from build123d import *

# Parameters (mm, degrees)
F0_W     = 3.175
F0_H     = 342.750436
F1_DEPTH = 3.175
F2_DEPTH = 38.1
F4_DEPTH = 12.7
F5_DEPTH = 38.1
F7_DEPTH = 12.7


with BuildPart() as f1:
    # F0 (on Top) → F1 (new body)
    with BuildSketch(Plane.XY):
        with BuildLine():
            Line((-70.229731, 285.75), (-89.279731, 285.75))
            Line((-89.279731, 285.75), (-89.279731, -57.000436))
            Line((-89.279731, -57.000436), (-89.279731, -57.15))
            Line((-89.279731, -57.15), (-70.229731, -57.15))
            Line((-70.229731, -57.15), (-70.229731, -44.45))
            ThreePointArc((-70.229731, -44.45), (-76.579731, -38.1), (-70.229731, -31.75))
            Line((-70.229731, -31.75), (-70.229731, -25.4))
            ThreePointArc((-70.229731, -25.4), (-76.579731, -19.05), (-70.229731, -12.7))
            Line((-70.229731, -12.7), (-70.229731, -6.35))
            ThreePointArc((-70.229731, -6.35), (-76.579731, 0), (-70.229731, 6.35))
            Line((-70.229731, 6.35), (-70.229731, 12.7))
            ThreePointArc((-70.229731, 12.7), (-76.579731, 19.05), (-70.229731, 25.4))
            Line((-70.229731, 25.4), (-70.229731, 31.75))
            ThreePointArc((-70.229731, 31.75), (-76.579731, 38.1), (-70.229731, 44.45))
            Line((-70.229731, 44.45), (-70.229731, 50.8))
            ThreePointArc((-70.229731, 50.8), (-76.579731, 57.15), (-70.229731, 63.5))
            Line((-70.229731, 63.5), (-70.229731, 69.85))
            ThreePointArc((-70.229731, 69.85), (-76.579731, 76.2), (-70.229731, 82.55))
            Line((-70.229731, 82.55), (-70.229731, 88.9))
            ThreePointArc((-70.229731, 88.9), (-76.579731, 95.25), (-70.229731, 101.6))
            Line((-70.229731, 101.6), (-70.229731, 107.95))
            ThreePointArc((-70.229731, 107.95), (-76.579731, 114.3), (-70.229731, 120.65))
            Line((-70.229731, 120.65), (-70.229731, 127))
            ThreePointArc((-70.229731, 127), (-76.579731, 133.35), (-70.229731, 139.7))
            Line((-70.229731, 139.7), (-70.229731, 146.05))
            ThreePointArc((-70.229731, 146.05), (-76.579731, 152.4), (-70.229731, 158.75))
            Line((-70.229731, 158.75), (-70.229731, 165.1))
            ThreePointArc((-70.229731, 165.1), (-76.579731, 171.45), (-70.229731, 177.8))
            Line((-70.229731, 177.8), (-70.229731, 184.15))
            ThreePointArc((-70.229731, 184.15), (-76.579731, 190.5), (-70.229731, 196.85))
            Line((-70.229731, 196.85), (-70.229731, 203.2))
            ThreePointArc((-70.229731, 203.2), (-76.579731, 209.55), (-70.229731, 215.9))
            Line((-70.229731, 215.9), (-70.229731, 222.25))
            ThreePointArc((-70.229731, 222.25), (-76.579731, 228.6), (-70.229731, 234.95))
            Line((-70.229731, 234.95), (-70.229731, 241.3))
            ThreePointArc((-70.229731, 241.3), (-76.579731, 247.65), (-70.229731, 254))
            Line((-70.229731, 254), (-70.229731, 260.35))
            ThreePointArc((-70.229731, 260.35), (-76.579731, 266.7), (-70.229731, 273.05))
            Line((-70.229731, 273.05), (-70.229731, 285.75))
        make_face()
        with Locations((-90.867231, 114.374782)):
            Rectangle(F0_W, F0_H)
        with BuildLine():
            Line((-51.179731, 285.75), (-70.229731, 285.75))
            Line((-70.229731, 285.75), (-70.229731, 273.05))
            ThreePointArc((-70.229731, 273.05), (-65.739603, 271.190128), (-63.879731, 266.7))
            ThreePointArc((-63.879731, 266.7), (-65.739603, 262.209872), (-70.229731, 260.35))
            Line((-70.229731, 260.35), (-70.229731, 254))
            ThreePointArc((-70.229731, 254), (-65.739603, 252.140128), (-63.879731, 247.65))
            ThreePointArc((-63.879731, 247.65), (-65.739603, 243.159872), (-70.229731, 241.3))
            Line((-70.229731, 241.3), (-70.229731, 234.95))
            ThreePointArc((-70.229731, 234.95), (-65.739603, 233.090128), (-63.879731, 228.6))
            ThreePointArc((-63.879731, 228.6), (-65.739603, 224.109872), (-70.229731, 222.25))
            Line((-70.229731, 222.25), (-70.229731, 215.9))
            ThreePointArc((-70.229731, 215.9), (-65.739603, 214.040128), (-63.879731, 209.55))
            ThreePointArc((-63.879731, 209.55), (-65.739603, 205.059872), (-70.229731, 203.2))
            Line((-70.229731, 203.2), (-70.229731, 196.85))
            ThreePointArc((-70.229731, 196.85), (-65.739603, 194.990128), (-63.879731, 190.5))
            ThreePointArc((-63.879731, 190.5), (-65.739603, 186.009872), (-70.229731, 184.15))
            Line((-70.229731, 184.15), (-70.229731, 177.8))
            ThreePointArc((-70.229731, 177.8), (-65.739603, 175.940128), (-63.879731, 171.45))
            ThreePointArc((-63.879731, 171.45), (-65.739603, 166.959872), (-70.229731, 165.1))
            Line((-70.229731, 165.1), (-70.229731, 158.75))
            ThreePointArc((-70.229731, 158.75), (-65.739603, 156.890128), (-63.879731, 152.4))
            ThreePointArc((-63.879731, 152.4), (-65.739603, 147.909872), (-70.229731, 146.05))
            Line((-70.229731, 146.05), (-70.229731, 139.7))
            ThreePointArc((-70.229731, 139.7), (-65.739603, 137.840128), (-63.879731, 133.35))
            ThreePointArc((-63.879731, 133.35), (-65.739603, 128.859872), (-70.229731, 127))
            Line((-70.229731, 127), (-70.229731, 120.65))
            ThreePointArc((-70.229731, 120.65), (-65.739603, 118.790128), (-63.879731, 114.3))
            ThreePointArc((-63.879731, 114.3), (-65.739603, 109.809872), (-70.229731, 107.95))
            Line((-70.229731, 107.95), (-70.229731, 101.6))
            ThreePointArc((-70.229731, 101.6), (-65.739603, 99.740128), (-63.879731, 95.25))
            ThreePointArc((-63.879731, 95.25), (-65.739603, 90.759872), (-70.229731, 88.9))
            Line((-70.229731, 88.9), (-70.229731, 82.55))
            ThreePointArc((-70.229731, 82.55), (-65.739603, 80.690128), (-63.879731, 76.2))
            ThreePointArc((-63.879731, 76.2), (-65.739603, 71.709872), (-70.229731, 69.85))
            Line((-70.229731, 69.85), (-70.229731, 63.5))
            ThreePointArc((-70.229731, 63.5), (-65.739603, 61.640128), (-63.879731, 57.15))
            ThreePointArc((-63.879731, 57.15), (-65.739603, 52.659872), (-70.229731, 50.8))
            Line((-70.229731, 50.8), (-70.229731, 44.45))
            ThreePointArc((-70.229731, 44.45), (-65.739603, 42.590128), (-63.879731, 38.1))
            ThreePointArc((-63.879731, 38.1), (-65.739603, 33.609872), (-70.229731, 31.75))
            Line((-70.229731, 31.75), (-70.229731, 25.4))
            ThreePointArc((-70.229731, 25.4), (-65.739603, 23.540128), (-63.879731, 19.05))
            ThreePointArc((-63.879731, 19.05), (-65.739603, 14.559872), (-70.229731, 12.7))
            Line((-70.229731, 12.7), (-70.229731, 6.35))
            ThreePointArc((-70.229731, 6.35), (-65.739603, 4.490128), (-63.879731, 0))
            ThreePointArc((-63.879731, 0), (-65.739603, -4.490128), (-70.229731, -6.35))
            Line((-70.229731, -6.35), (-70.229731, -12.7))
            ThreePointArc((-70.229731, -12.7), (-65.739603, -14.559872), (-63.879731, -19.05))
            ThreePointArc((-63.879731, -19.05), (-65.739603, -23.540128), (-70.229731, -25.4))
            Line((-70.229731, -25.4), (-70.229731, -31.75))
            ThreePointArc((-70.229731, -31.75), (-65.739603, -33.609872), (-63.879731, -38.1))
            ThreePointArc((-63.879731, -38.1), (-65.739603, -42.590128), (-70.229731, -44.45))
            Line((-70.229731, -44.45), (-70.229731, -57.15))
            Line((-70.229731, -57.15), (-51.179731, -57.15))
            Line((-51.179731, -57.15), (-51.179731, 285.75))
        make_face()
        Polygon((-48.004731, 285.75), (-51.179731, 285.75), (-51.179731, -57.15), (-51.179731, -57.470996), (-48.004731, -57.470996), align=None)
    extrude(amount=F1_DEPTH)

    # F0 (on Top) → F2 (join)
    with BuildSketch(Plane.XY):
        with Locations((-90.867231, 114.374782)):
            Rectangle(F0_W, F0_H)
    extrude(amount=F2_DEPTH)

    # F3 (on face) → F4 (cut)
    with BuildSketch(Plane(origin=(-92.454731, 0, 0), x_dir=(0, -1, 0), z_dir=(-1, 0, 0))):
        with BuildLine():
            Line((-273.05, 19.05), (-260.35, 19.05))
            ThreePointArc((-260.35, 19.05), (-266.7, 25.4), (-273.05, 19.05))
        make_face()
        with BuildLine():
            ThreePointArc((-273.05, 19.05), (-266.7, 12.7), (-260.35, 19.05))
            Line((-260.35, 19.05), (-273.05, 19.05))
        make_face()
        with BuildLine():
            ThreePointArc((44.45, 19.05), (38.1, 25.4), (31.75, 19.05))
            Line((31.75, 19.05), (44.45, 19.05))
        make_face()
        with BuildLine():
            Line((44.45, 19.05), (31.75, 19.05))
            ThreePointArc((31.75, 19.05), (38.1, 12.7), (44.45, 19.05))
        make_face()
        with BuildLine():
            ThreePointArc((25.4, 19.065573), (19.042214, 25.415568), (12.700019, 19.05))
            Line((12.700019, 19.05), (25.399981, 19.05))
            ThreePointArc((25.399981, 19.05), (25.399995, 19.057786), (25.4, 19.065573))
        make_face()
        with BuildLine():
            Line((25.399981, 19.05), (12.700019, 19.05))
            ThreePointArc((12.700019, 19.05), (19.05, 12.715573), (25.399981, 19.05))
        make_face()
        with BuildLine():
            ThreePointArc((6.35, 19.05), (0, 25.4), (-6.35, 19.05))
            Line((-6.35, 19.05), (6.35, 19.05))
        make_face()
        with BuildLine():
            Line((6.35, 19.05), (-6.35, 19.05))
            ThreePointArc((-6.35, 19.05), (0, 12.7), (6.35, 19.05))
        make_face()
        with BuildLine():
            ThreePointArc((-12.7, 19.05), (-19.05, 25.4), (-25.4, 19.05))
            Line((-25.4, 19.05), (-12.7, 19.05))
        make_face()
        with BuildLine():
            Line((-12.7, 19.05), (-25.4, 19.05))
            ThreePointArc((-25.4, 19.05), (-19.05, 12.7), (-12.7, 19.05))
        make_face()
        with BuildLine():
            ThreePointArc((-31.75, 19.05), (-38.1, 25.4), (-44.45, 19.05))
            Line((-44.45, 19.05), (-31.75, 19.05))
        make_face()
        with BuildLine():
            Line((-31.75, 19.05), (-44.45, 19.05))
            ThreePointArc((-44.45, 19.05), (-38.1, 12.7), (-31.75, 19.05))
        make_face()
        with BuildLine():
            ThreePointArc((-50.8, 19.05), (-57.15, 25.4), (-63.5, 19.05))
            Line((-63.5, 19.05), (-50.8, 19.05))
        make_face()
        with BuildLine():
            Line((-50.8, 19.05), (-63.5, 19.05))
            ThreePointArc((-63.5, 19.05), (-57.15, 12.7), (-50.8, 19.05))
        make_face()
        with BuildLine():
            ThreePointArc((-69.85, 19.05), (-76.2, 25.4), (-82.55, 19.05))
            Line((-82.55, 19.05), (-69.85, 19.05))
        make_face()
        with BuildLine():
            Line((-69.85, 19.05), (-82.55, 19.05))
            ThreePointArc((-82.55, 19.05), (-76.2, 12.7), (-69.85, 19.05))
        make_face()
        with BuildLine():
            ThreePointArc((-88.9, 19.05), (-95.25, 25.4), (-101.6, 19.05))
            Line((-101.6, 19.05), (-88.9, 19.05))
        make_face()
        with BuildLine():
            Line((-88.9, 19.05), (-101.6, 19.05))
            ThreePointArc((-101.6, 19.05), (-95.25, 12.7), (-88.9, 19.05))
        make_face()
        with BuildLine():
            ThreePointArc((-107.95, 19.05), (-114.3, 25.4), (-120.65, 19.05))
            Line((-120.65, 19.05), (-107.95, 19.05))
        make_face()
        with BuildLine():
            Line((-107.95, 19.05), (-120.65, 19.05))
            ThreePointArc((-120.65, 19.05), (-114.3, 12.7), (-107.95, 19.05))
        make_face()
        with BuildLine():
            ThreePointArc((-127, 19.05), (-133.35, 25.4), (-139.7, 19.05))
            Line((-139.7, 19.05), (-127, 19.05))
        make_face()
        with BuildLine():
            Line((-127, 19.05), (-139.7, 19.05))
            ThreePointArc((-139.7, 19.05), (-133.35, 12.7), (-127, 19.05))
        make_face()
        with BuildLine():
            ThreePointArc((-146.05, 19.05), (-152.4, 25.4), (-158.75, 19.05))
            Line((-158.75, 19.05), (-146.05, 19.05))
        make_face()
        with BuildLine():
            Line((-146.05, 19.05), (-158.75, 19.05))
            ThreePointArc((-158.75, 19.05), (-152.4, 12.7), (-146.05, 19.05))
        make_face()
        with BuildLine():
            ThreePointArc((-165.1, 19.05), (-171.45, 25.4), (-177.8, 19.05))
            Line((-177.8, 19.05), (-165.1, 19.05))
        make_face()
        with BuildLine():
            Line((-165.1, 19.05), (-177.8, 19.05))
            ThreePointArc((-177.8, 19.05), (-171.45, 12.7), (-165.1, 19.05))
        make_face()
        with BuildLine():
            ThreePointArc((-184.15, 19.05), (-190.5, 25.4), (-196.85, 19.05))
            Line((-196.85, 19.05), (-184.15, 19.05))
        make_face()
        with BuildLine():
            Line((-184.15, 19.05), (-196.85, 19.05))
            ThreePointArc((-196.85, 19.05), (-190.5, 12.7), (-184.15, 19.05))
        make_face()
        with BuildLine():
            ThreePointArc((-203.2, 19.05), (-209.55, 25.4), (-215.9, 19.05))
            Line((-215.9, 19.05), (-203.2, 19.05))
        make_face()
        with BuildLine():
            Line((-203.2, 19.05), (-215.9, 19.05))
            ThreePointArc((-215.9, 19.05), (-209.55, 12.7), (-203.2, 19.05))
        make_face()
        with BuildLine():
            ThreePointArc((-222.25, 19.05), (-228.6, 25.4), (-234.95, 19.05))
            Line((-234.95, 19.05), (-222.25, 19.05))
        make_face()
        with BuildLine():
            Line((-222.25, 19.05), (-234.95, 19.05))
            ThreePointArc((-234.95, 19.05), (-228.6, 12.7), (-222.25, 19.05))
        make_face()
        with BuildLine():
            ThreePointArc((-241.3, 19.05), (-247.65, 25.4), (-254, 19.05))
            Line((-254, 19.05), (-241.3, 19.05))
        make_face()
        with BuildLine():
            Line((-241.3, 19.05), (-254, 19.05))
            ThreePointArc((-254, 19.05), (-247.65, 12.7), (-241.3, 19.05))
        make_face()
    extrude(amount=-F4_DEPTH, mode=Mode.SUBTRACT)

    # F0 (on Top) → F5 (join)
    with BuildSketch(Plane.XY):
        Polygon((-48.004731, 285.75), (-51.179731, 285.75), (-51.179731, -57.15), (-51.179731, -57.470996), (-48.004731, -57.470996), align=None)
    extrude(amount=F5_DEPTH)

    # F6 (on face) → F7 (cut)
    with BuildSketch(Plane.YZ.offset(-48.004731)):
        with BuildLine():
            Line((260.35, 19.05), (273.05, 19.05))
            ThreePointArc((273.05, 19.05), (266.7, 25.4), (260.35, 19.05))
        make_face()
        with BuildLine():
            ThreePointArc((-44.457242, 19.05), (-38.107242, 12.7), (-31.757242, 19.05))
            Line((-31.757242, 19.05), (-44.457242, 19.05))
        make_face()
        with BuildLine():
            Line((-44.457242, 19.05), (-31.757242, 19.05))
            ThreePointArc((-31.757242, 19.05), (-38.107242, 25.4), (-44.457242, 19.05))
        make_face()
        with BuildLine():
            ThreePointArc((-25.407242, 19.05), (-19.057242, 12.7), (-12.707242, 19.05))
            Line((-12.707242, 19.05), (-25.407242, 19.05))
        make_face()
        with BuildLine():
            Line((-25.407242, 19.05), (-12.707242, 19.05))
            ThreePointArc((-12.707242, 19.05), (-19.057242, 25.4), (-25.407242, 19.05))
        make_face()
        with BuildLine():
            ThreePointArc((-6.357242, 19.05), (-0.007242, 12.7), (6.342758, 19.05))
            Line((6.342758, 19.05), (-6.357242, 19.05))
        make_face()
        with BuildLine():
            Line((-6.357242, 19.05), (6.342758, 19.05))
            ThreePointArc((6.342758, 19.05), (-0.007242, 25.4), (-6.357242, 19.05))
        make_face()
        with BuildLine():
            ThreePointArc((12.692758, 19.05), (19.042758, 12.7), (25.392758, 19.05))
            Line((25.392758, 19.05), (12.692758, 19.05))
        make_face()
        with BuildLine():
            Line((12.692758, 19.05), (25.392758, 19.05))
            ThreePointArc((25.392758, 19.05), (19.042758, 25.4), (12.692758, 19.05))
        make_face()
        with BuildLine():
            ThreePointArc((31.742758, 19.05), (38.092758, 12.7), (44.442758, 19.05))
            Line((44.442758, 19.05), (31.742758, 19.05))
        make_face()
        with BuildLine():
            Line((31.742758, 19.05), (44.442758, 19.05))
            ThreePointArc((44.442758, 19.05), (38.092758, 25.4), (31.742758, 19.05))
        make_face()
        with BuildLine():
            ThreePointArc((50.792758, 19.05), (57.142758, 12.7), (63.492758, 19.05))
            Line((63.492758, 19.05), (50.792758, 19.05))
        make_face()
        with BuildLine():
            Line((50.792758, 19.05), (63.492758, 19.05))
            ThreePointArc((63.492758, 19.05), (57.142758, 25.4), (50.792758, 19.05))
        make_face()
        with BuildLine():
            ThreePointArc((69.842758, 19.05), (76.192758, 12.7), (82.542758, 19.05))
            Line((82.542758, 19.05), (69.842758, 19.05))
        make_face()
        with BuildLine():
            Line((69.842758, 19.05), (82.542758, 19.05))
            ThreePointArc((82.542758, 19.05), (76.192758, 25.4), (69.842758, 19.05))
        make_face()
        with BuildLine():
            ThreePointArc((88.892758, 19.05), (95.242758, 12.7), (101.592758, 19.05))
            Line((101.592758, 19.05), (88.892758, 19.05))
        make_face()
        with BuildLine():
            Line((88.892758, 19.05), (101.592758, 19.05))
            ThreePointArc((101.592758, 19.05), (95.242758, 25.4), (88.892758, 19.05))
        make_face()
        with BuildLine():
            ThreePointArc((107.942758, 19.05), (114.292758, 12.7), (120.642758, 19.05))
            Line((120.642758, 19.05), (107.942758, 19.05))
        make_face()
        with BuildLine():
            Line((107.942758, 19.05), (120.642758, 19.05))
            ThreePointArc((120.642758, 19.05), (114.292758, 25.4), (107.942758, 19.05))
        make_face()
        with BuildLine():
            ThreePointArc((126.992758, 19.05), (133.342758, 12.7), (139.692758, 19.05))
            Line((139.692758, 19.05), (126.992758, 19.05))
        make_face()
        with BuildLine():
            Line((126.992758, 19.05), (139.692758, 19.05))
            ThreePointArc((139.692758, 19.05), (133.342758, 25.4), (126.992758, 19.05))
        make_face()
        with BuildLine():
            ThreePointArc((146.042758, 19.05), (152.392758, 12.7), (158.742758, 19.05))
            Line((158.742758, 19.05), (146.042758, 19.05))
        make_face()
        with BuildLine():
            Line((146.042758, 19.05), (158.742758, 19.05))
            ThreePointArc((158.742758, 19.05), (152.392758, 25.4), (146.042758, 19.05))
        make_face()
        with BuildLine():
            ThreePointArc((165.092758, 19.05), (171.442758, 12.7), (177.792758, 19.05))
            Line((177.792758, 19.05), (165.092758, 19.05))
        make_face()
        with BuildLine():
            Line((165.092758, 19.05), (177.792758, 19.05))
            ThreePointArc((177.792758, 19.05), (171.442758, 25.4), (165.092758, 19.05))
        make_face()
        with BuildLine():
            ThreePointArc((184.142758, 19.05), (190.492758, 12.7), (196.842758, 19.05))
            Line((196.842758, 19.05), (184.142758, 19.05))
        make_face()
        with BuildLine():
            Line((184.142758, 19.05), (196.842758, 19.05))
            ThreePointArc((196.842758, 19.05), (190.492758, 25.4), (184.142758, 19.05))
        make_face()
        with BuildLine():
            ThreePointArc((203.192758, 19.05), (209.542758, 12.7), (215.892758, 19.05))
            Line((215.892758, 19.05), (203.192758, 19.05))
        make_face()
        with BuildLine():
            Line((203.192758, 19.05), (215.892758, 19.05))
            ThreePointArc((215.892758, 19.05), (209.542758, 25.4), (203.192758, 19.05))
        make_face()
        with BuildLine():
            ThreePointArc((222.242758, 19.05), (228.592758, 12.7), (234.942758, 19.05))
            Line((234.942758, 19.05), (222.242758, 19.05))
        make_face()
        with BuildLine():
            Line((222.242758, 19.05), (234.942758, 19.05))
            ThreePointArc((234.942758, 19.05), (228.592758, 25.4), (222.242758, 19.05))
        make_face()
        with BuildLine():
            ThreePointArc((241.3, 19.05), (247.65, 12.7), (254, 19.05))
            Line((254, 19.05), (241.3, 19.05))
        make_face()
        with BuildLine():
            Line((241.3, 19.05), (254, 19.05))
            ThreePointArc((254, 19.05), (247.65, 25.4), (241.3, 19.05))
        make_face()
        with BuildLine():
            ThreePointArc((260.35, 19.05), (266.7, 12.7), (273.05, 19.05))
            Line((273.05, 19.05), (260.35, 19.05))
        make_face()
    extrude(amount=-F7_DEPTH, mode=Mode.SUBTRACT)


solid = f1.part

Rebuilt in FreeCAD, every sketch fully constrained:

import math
import FreeCAD as App
import Part
import Sketcher

V = App.Vector
Q = App.Units.Quantity


def add_polygon(sketch, points):
    """Adds a closed chain of lines whose ends are joined by coincident constraints."""
    first, n = sketch.GeometryCount, len(points)
    for a, b in zip(points, points[1:] + points[:1]):
        sketch.addGeometry(Part.LineSegment(App.Vector(*a, 0), App.Vector(*b, 0)), False)
    for i in range(n):
        sketch.addConstraint(Sketcher.Constraint("Coincident", first + i, 2, first + (i + 1) % n, 1))

doc = App.newDocument("Part")
body = doc.addObject("PartDesign::Body", "Body")

# Sketch on XY plane
sketch1 = body.newObject("Sketcher::SketchObject", "Sketch")
sketch1.AttachmentSupport = (doc.getObject("XY_Plane"), [""])
sketch1.MapMode = "FlatFace"
add_polygon(sketch1, [(-92.454731, 285.75), (-92.454731, -57.000436), (-89.279731, -57.000436), (-89.279731, -57.15), (-51.179731, -57.15), (-51.179731, -57.470996), (-48.004731, -57.470996), (-48.004731, 285.75)])  # lines 0-7
sketch1.addGeometry(Part.ArcOfCircle(Part.Circle(V(-70.229731, -38.1, 0), V(0, 0, 1), 6.35), math.radians(90), math.radians(270)), False)  # 8
sketch1.addGeometry(Part.ArcOfCircle(Part.Circle(V(-70.229731, -38.1, 0), V(0, 0, 1), 6.35), math.radians(0.000002), math.radians(89.999998)), False)  # 9
sketch1.addGeometry(Part.ArcOfCircle(Part.Circle(V(-70.229731, -38.1, 0), V(0, 0, 1), 6.35), math.radians(-89.999998), math.radians(-0.000002)), False)  # 10
sketch1.addGeometry(Part.ArcOfCircle(Part.Circle(V(-70.229731, -19.05, 0), V(0, 0, 1), 6.35), math.radians(90), math.radians(270)), False)  # 11
sketch1.addGeometry(Part.ArcOfCircle(Part.Circle(V(-70.229731, -19.05, 0), V(0, 0, 1), 6.35), math.radians(0.000002), math.radians(89.999998)), False)  # 12
sketch1.addGeometry(Part.ArcOfCircle(Part.Circle(V(-70.229731, -19.05, 0), V(0, 0, 1), 6.35), math.radians(-89.999998), math.radians(-0.000002)), False)  # 13
sketch1.addGeometry(Part.ArcOfCircle(Part.Circle(V(-70.229731, 0, 0), V(0, 0, 1), 6.35), math.radians(90), math.radians(270)), False)  # 14
sketch1.addGeometry(Part.ArcOfCircle(Part.Circle(V(-70.229731, 0, 0), V(0, 0, 1), 6.35), math.radians(0.000002), math.radians(89.999998)), False)  # 15
sketch1.addGeometry(Part.ArcOfCircle(Part.Circle(V(-70.229731, 0, 0), V(0, 0, 1), 6.35), math.radians(-89.999998), math.radians(-0.000002)), False)  # 16
sketch1.addGeometry(Part.ArcOfCircle(Part.Circle(V(-70.229731, 19.05, 0), V(0, 0, 1), 6.35), math.radians(90), math.radians(270)), False)  # 17
sketch1.addGeometry(Part.ArcOfCircle(Part.Circle(V(-70.229731, 19.05, 0), V(0, 0, 1), 6.35), math.radians(0.000002), math.radians(89.999998)), False)  # 18
sketch1.addGeometry(Part.ArcOfCircle(Part.Circle(V(-70.229731, 19.05, 0), V(0, 0, 1), 6.35), math.radians(-89.999998), math.radians(-0.000002)), False)  # 19
sketch1.addGeometry(Part.ArcOfCircle(Part.Circle(V(-70.229731, 38.1, 0), V(0, 0, 1), 6.35), math.radians(90), math.radians(270)), False)  # 20
sketch1.addGeometry(Part.ArcOfCircle(Part.Circle(V(-70.229731, 38.1, 0), V(0, 0, 1), 6.35), math.radians(0.000002), math.radians(89.999998)), False)  # 21
sketch1.addGeometry(Part.ArcOfCircle(Part.Circle(V(-70.229731, 38.1, 0), V(0, 0, 1), 6.35), math.radians(-89.999998), math.radians(-0.000002)), False)  # 22
sketch1.addGeometry(Part.ArcOfCircle(Part.Circle(V(-70.229731, 57.15, 0), V(0, 0, 1), 6.35), math.radians(90), math.radians(270)), False)  # 23
sketch1.addGeometry(Part.ArcOfCircle(Part.Circle(V(-70.229731, 57.15, 0), V(0, 0, 1), 6.35), math.radians(0.000002), math.radians(89.999998)), False)  # 24
sketch1.addGeometry(Part.ArcOfCircle(Part.Circle(V(-70.229731, 57.15, 0), V(0, 0, 1), 6.35), math.radians(-89.999998), math.radians(-0.000002)), False)  # 25
sketch1.addGeometry(Part.ArcOfCircle(Part.Circle(V(-70.229731, 76.2, 0), V(0, 0, 1), 6.35), math.radians(90), math.radians(270)), False)  # 26
sketch1.addGeometry(Part.ArcOfCircle(Part.Circle(V(-70.229731, 76.2, 0), V(0, 0, 1), 6.35), math.radians(0.000002), math.radians(89.999998)), False)  # 27
sketch1.addGeometry(Part.ArcOfCircle(Part.Circle(V(-70.229731, 76.2, 0), V(0, 0, 1), 6.35), math.radians(-89.999998), math.radians(-0.000002)), False)  # 28
sketch1.addGeometry(Part.ArcOfCircle(Part.Circle(V(-70.229731, 95.25, 0), V(0, 0, 1), 6.35), math.radians(90), math.radians(270)), False)  # 29
sketch1.addGeometry(Part.ArcOfCircle(Part.Circle(V(-70.229731, 95.25, 0), V(0, 0, 1), 6.35), math.radians(0.000002), math.radians(89.999998)), False)  # 30
sketch1.addGeometry(Part.ArcOfCircle(Part.Circle(V(-70.229731, 95.25, 0), V(0, 0, 1), 6.35), math.radians(-89.999998), math.radians(-0.000002)), False)  # 31
sketch1.addGeometry(Part.ArcOfCircle(Part.Circle(V(-70.229731, 114.3, 0), V(0, 0, 1), 6.35), math.radians(90), math.radians(270)), False)  # 32
sketch1.addGeometry(Part.ArcOfCircle(Part.Circle(V(-70.229731, 114.3, 0), V(0, 0, 1), 6.35), math.radians(0.000002), math.radians(89.999998)), False)  # 33
sketch1.addGeometry(Part.ArcOfCircle(Part.Circle(V(-70.229731, 114.3, 0), V(0, 0, 1), 6.35), math.radians(-89.999998), math.radians(-0.000002)), False)  # 34
sketch1.addGeometry(Part.ArcOfCircle(Part.Circle(V(-70.229731, 133.35, 0), V(0, 0, 1), 6.35), math.radians(90), math.radians(270)), False)  # 35
sketch1.addGeometry(Part.ArcOfCircle(Part.Circle(V(-70.229731, 133.35, 0), V(0, 0, 1), 6.35), math.radians(0.000002), math.radians(89.999998)), False)  # 36
sketch1.addGeometry(Part.ArcOfCircle(Part.Circle(V(-70.229731, 133.35, 0), V(0, 0, 1), 6.35), math.radians(-89.999998), math.radians(-0.000002)), False)  # 37
sketch1.addGeometry(Part.ArcOfCircle(Part.Circle(V(-70.229731, 152.4, 0), V(0, 0, 1), 6.35), math.radians(90), math.radians(270)), False)  # 38
sketch1.addGeometry(Part.ArcOfCircle(Part.Circle(V(-70.229731, 152.4, 0), V(0, 0, 1), 6.35), math.radians(0.000002), math.radians(89.999998)), False)  # 39
sketch1.addGeometry(Part.ArcOfCircle(Part.Circle(V(-70.229731, 152.4, 0), V(0, 0, 1), 6.35), math.radians(-89.999998), math.radians(-0.000002)), False)  # 40
sketch1.addGeometry(Part.ArcOfCircle(Part.Circle(V(-70.229731, 171.45, 0), V(0, 0, 1), 6.35), math.radians(90), math.radians(270)), False)  # 41
sketch1.addGeometry(Part.ArcOfCircle(Part.Circle(V(-70.229731, 171.45, 0), V(0, 0, 1), 6.35), math.radians(0.000002), math.radians(89.999998)), False)  # 42
sketch1.addGeometry(Part.ArcOfCircle(Part.Circle(V(-70.229731, 171.45, 0), V(0, 0, 1), 6.35), math.radians(-89.999998), math.radians(-0.000002)), False)  # 43
sketch1.addGeometry(Part.ArcOfCircle(Part.Circle(V(-70.229731, 190.5, 0), V(0, 0, 1), 6.35), math.radians(90), math.radians(270)), False)  # 44
sketch1.addGeometry(Part.ArcOfCircle(Part.Circle(V(-70.229731, 190.5, 0), V(0, 0, 1), 6.35), math.radians(0.000002), math.radians(89.999998)), False)  # 45
sketch1.addGeometry(Part.ArcOfCircle(Part.Circle(V(-70.229731, 190.5, 0), V(0, 0, 1), 6.35), math.radians(-89.999998), math.radians(-0.000002)), False)  # 46
sketch1.addGeometry(Part.ArcOfCircle(Part.Circle(V(-70.229731, 209.55, 0), V(0, 0, 1), 6.35), math.radians(90), math.radians(270)), False)  # 47
sketch1.addGeometry(Part.ArcOfCircle(Part.Circle(V(-70.229731, 209.55, 0), V(0, 0, 1), 6.35), math.radians(0.000002), math.radians(89.999998)), False)  # 48
sketch1.addGeometry(Part.ArcOfCircle(Part.Circle(V(-70.229731, 209.55, 0), V(0, 0, 1), 6.35), math.radians(-89.999998), math.radians(-0.000002)), False)  # 49
sketch1.addGeometry(Part.ArcOfCircle(Part.Circle(V(-70.229731, 228.6, 0), V(0, 0, 1), 6.35), math.radians(90), math.radians(270)), False)  # 50
sketch1.addGeometry(Part.ArcOfCircle(Part.Circle(V(-70.229731, 228.6, 0), V(0, 0, 1), 6.35), math.radians(0.000002), math.radians(89.999998)), False)  # 51
sketch1.addGeometry(Part.ArcOfCircle(Part.Circle(V(-70.229731, 228.6, 0), V(0, 0, 1), 6.35), math.radians(-89.999998), math.radians(-0.000002)), False)  # 52
sketch1.addGeometry(Part.ArcOfCircle(Part.Circle(V(-70.229731, 247.65, 0), V(0, 0, 1), 6.35), math.radians(90), math.radians(270)), False)  # 53
sketch1.addGeometry(Part.ArcOfCircle(Part.Circle(V(-70.229731, 247.65, 0), V(0, 0, 1), 6.35), math.radians(0.000002), math.radians(89.999998)), False)  # 54
sketch1.addGeometry(Part.ArcOfCircle(Part.Circle(V(-70.229731, 247.65, 0), V(0, 0, 1), 6.35), math.radians(-89.999998), math.radians(-0.000002)), False)  # 55
sketch1.addGeometry(Part.ArcOfCircle(Part.Circle(V(-70.229731, 266.7, 0), V(0, 0, 1), 6.35), math.radians(90), math.radians(270)), False)  # 56
sketch1.addGeometry(Part.ArcOfCircle(Part.Circle(V(-70.229731, 266.7, 0), V(0, 0, 1), 6.35), math.radians(0.000002), math.radians(89.999998)), False)  # 57
sketch1.addGeometry(Part.ArcOfCircle(Part.Circle(V(-70.229731, 266.7, 0), V(0, 0, 1), 6.35), math.radians(-89.999998), math.radians(-0.000002)), False)  # 58
sketch1.addConstraint([
    Sketcher.Constraint("Tangent", 8, 1, 9, 2),
    Sketcher.Constraint("Tangent", 9, 1, 10, 2),
    Sketcher.Constraint("Tangent", 10, 1, 8, 2),
    Sketcher.Constraint("Tangent", 11, 1, 12, 2),
    Sketcher.Constraint("Tangent", 12, 1, 13, 2),
    Sketcher.Constraint("Tangent", 13, 1, 11, 2),
    Sketcher.Constraint("Tangent", 14, 1, 15, 2),
    Sketcher.Constraint("Tangent", 15, 1, 16, 2),
    Sketcher.Constraint("Tangent", 16, 1, 14, 2),
    Sketcher.Constraint("Tangent", 17, 1, 18, 2),
    Sketcher.Constraint("Tangent", 18, 1, 19, 2),
    Sketcher.Constraint("Tangent", 19, 1, 17, 2),
    Sketcher.Constraint("Tangent", 20, 1, 21, 2),
    Sketcher.Constraint("Tangent", 21, 1, 22, 2),
    Sketcher.Constraint("Tangent", 22, 1, 20, 2),
    Sketcher.Constraint("Tangent", 23, 1, 24, 2),
    Sketcher.Constraint("Tangent", 24, 1, 25, 2),
    Sketcher.Constraint("Tangent", 25, 1, 23, 2),
    Sketcher.Constraint("Tangent", 26, 1, 27, 2),
    Sketcher.Constraint("Tangent", 27, 1, 28, 2),
    Sketcher.Constraint("Tangent", 28, 1, 26, 2),
    Sketcher.Constraint("Tangent", 29, 1, 30, 2),
    Sketcher.Constraint("Tangent", 30, 1, 31, 2),
    Sketcher.Constraint("Tangent", 31, 1, 29, 2),
    Sketcher.Constraint("Tangent", 32, 1, 33, 2),
    Sketcher.Constraint("Tangent", 33, 1, 34, 2),
    Sketcher.Constraint("Tangent", 34, 1, 32, 2),
    Sketcher.Constraint("Tangent", 35, 1, 36, 2),
    Sketcher.Constraint("Tangent", 36, 1, 37, 2),
    Sketcher.Constraint("Tangent", 37, 1, 35, 2),
    Sketcher.Constraint("Tangent", 38, 1, 39, 2),
    Sketcher.Constraint("Tangent", 39, 1, 40, 2),
    Sketcher.Constraint("Tangent", 40, 1, 38, 2),
    Sketcher.Constraint("Tangent", 41, 1, 42, 2),
    Sketcher.Constraint("Tangent", 42, 1, 43, 2),
    Sketcher.Constraint("Tangent", 43, 1, 41, 2),
    Sketcher.Constraint("Tangent", 44, 1, 45, 2),
    Sketcher.Constraint("Tangent", 45, 1, 46, 2),
    Sketcher.Constraint("Tangent", 46, 1, 44, 2),
    Sketcher.Constraint("Tangent", 47, 1, 48, 2),
    Sketcher.Constraint("Tangent", 48, 1, 49, 2),
    Sketcher.Constraint("Tangent", 49, 1, 47, 2),
    Sketcher.Constraint("Tangent", 50, 1, 51, 2),
    Sketcher.Constraint("Tangent", 51, 1, 52, 2),
    Sketcher.Constraint("Tangent", 52, 1, 50, 2),
    Sketcher.Constraint("Tangent", 53, 1, 54, 2),
    Sketcher.Constraint("Tangent", 54, 1, 55, 2),
    Sketcher.Constraint("Tangent", 55, 1, 53, 2),
    Sketcher.Constraint("Tangent", 56, 1, 57, 2),
    Sketcher.Constraint("Tangent", 57, 1, 58, 2),
    Sketcher.Constraint("Tangent", 58, 1, 56, 2),
    Sketcher.Constraint("Vertical", 0),
    Sketcher.Constraint("Horizontal", 1),
    Sketcher.Constraint("Vertical", 2),
    Sketcher.Constraint("Horizontal", 3),
    Sketcher.Constraint("Vertical", 4),
    Sketcher.Constraint("Horizontal", 5),
    Sketcher.Constraint("Vertical", 6),
    Sketcher.Constraint("Horizontal", 7),
    Sketcher.Constraint("Equal", 10, 11),
    Sketcher.Constraint("Equal", 13, 14),
    Sketcher.Constraint("Equal", 16, 17),
    Sketcher.Constraint("Equal", 19, 20),
    Sketcher.Constraint("Equal", 22, 23),
    Sketcher.Constraint("Equal", 25, 26),
    Sketcher.Constraint("Equal", 28, 29),
    Sketcher.Constraint("Equal", 31, 32),
    Sketcher.Constraint("Equal", 34, 35),
    Sketcher.Constraint("Equal", 37, 38),
    Sketcher.Constraint("Equal", 40, 41),
    Sketcher.Constraint("Equal", 43, 44),
    Sketcher.Constraint("Equal", 46, 47),
    Sketcher.Constraint("Equal", 49, 50),
    Sketcher.Constraint("Equal", 52, 53),
    Sketcher.Constraint("Equal", 55, 56),
    Sketcher.Constraint("Symmetric", 11, 3, 17, 3, -1),
    Sketcher.Constraint("Symmetric", 8, 3, 20, 3, -1),
    Sketcher.Constraint("Symmetric", 14, 1, 16, 1, -1),
    Sketcher.Constraint("PointOnObject", 15, 1, -1),
    Sketcher.Constraint("Horizontal", 10, 3, 9, 1),
    Sketcher.Constraint("Horizontal", 13, 3, 12, 1),
    Sketcher.Constraint("Horizontal", 19, 3, 18, 1),
    Sketcher.Constraint("Horizontal", 22, 3, 21, 1),
    Sketcher.Constraint("Horizontal", 25, 3, 24, 1),
    Sketcher.Constraint("Horizontal", 28, 3, 27, 1),
    Sketcher.Constraint("Horizontal", 31, 3, 30, 1),
    Sketcher.Constraint("Horizontal", 34, 3, 33, 1),
    Sketcher.Constraint("Horizontal", 37, 3, 36, 1),
    Sketcher.Constraint("Horizontal", 40, 3, 39, 1),
    Sketcher.Constraint("Horizontal", 43, 3, 42, 1),
    Sketcher.Constraint("Horizontal", 46, 3, 45, 1),
    Sketcher.Constraint("Horizontal", 49, 3, 48, 1),
    Sketcher.Constraint("Horizontal", 52, 3, 51, 1),
    Sketcher.Constraint("Horizontal", 55, 3, 54, 1),
    Sketcher.Constraint("Horizontal", 58, 3, 57, 1),
    Sketcher.Constraint("Vertical", 10, 3, 11, 3),
    Sketcher.Constraint("Vertical", 13, 3, 14, 3),
    Sketcher.Constraint("Vertical", 22, 3, 23, 3),
    Sketcher.Constraint("Vertical", 25, 3, 26, 3),
    Sketcher.Constraint("Vertical", 28, 3, 29, 3),
    Sketcher.Constraint("Vertical", 31, 3, 32, 3),
    Sketcher.Constraint("Vertical", 34, 3, 35, 3),
    Sketcher.Constraint("Vertical", 37, 3, 38, 3),
    Sketcher.Constraint("Vertical", 40, 3, 41, 3),
    Sketcher.Constraint("Vertical", 43, 3, 44, 3),
    Sketcher.Constraint("Vertical", 46, 3, 47, 3),
    Sketcher.Constraint("Vertical", 49, 3, 50, 3),
    Sketcher.Constraint("Vertical", 52, 3, 53, 3),
    Sketcher.Constraint("Vertical", 55, 3, 56, 3),
    Sketcher.Constraint("Vertical", 58, 3, 8, 1),
    Sketcher.Constraint("Vertical", 8, 1, 10, 1),
    Sketcher.Constraint("Vertical", 10, 1, 11, 1),
    Sketcher.Constraint("Vertical", 11, 1, 13, 1),
    Sketcher.Constraint("Vertical", 13, 1, 14, 1),
    Sketcher.Constraint("Vertical", 16, 1, 17, 1),
    Sketcher.Constraint("Vertical", 17, 1, 19, 1),
    Sketcher.Constraint("Vertical", 19, 1, 20, 1),
    Sketcher.Constraint("Vertical", 20, 1, 22, 1),
    Sketcher.Constraint("Vertical", 22, 1, 23, 1),
    Sketcher.Constraint("Vertical", 23, 1, 25, 1),
    Sketcher.Constraint("Vertical", 25, 1, 26, 1),
    Sketcher.Constraint("Vertical", 26, 1, 28, 1),
    Sketcher.Constraint("Vertical", 28, 1, 29, 1),
    Sketcher.Constraint("Vertical", 29, 1, 31, 1),
    Sketcher.Constraint("Vertical", 31, 1, 32, 1),
    Sketcher.Constraint("Vertical", 32, 1, 34, 1),
    Sketcher.Constraint("Vertical", 34, 1, 35, 1),
    Sketcher.Constraint("Vertical", 35, 1, 37, 1),
    Sketcher.Constraint("Vertical", 37, 1, 38, 1),
    Sketcher.Constraint("Vertical", 38, 1, 40, 1),
    Sketcher.Constraint("Vertical", 40, 1, 41, 1),
    Sketcher.Constraint("Vertical", 41, 1, 43, 1),
    Sketcher.Constraint("Vertical", 43, 1, 44, 1),
    Sketcher.Constraint("Vertical", 44, 1, 46, 1),
    Sketcher.Constraint("Vertical", 46, 1, 47, 1),
    Sketcher.Constraint("Vertical", 47, 1, 49, 1),
    Sketcher.Constraint("Vertical", 49, 1, 50, 1),
    Sketcher.Constraint("Vertical", 50, 1, 52, 1),
    Sketcher.Constraint("Vertical", 52, 1, 53, 1),
    Sketcher.Constraint("Vertical", 53, 1, 55, 1),
    Sketcher.Constraint("Vertical", 55, 1, 56, 1),
    Sketcher.Constraint("Vertical", 56, 1, 58, 1),
    Sketcher.Constraint("Equal", 1, 5),
    Sketcher.Constraint("Radius", 8, Q("0.25 in")),
    Sketcher.Constraint("DistanceX", 3, 1, 3, 2, Q("1.5 in")),
    Sketcher.Constraint("DistanceY", -1, 1, 26, 3, Q("3 in")),
    Sketcher.Constraint("DistanceY", -1, 1, 38, 3, Q("6 in")),
    Sketcher.Constraint("DistanceY", -1, 1, 50, 3, Q("9 in")),
    Sketcher.Constraint("DistanceY", 13, 1, -1, 1, Q("1 in")),
    Sketcher.Constraint("DistanceY", -1, 1, 25, 1, Q("2 in")),
    Sketcher.Constraint("DistanceY", -1, 1, 29, 1, Q("4 in")),
    Sketcher.Constraint("DistanceY", -1, 1, 37, 1, Q("5 in")),
    Sketcher.Constraint("DistanceY", -1, 1, 41, 1, Q("7 in")),
    Sketcher.Constraint("DistanceY", -1, 1, 49, 1, Q("8 in")),
    Sketcher.Constraint("DistanceY", -1, 1, 53, 1, Q("10 in")),
    Sketcher.Constraint("DistanceX", 7, 2, 7, 1, Q("1.75 in")),
    Sketcher.Constraint("DistanceY", 8, 3, -1, 1, Q("1.5 in")),
    Sketcher.Constraint("DistanceY", -1, 1, 32, 3, Q("4.5 in")),
    Sketcher.Constraint("DistanceY", -1, 1, 44, 3, Q("7.5 in")),
    Sketcher.Constraint("DistanceY", -1, 1, 56, 3, Q("10.5 in")),
    Sketcher.Constraint("DistanceY", 2, 2, -1, 1, Q("2.25 in")),
    Sketcher.Constraint("DistanceY", -1, 1, 6, 2, Q("11.25 in")),
    Sketcher.Constraint("DistanceY", 0, 2, 0, 1, Q("342.750436 mm")),
    Sketcher.Constraint("DistanceY", 4, 2, 4, 1, Q("0.320996 mm")),
    Sketcher.Constraint("DistanceX", 8, 3, -1, 1, Q("70.229731 mm")),
    Sketcher.Constraint("DistanceX", 0, 2, -1, 1, Q("92.454731 mm")),
])
pad1 = body.newObject("PartDesign::Pad", "Pad")
pad1.Profile = sketch1
pad1.Length = Q("0.125 in")

# Sketch on XY plane
sketch2 = body.newObject("Sketcher::SketchObject", "Sketch001")
sketch2.AttachmentSupport = (doc.getObject("XY_Plane"), [""])
sketch2.MapMode = "FlatFace"
add_polygon(sketch2, [(-92.454731, 285.75), (-92.454731, -57.000436), (-89.279731, -57.000436), (-89.279731, 285.75)])  # lines 0-3
sketch2.addConstraint([
    Sketcher.Constraint("Vertical", 0),
    Sketcher.Constraint("Horizontal", 1),
    Sketcher.Constraint("Vertical", 2),
    Sketcher.Constraint("Horizontal", 3),
    Sketcher.Constraint("DistanceX", 1, 1, 1, 2, Q("0.125 in")),
    Sketcher.Constraint("DistanceY", -1, 1, 2, 2, Q("11.25 in")),
    Sketcher.Constraint("DistanceY", 0, 2, 0, 1, Q("342.750436 mm")),
    Sketcher.Constraint("DistanceX", 0, 2, -1, 1, Q("92.454731 mm")),
])
pad2 = body.newObject("PartDesign::Pad", "Pad001")
pad2.Profile = sketch2
pad2.Length = Q("1.5 in")

# Sketch on YZ plane
sketch3 = body.newObject("Sketcher::SketchObject", "Sketch002")
sketch3.AttachmentSupport = (doc.getObject("YZ_Plane"), [""])
sketch3.MapMode = "FlatFace"
sketch3.AttachmentOffset = App.Placement(V(0, 0, -92.454731), App.Rotation())
sketch3.addGeometry([
    Part.Circle(V(266.7, 19.05, 0), V(0, 0, 1), 6.35),  # 0
    Part.Circle(V(-38.1, 19.05, 0), V(0, 0, 1), 6.35),  # 1
    Part.ArcOfCircle(Part.Circle(V(-19.05, 19.065573, 0), V(0, 0, 1), 6.35), math.radians(-0.140512), math.radians(179.999998)),  # 2
    Part.ArcOfCircle(Part.Circle(V(-19.05, 19.065573, 0), V(0, 0, 1), 6.35), math.radians(-179.859484), math.radians(-0.140516)),  # 3
    Part.ArcOfCircle(Part.Circle(V(-18.664276, 19.066004, 0), V(0, 0, 1), 6.735724), math.radians(-179.99633), math.radians(-179.863862)),  # 4
    Part.Circle(V(0, 19.05, 0), V(0, 0, 1), 6.35),  # 5
    Part.Circle(V(19.05, 19.05, 0), V(0, 0, 1), 6.35),  # 6
    Part.Circle(V(38.1, 19.05, 0), V(0, 0, 1), 6.35),  # 7
    Part.Circle(V(57.15, 19.05, 0), V(0, 0, 1), 6.35),  # 8
    Part.Circle(V(76.2, 19.05, 0), V(0, 0, 1), 6.35),  # 9
    Part.Circle(V(95.25, 19.05, 0), V(0, 0, 1), 6.35),  # 10
    Part.Circle(V(114.3, 19.05, 0), V(0, 0, 1), 6.35),  # 11
    Part.Circle(V(133.35, 19.05, 0), V(0, 0, 1), 6.35),  # 12
    Part.Circle(V(152.4, 19.05, 0), V(0, 0, 1), 6.35),  # 13
    Part.Circle(V(171.45, 19.05, 0), V(0, 0, 1), 6.35),  # 14
    Part.Circle(V(190.5, 19.05, 0), V(0, 0, 1), 6.35),  # 15
    Part.Circle(V(209.55, 19.05, 0), V(0, 0, 1), 6.35),  # 16
    Part.Circle(V(228.6, 19.05, 0), V(0, 0, 1), 6.35),  # 17
    Part.Circle(V(247.65, 19.05, 0), V(0, 0, 1), 6.35),  # 18
], False)
sketch3.addConstraint([
    Sketcher.Constraint("Tangent", 2, 1, 3, 2),
    Sketcher.Constraint("Coincident", 3, 1, 4, 2),
    Sketcher.Constraint("Coincident", 4, 1, 2, 2),
    Sketcher.Constraint("Equal", 0, 1),
    Sketcher.Constraint("Equal", 1, 2),
    Sketcher.Constraint("Equal", 3, 5),
    Sketcher.Constraint("Equal", 5, 6),
    Sketcher.Constraint("Equal", 6, 7),
    Sketcher.Constraint("Equal", 7, 8),
    Sketcher.Constraint("Equal", 8, 9),
    Sketcher.Constraint("Equal", 9, 10),
    Sketcher.Constraint("Equal", 10, 11),
    Sketcher.Constraint("Equal", 11, 12),
    Sketcher.Constraint("Equal", 12, 13),
    Sketcher.Constraint("Equal", 13, 14),
    Sketcher.Constraint("Equal", 14, 15),
    Sketcher.Constraint("Equal", 15, 16),
    Sketcher.Constraint("Equal", 16, 17),
    Sketcher.Constraint("Equal", 17, 18),
    Sketcher.Constraint("Symmetric", 1, 3, 7, 3, -2),
    Sketcher.Constraint("PointOnObject", 5, 3, -2),
    Sketcher.Constraint("Horizontal", 0, 3, 1, 3),
    Sketcher.Constraint("Horizontal", 1, 3, 5, 3),
    Sketcher.Constraint("Horizontal", 5, 3, 6, 3),
    Sketcher.Constraint("Horizontal", 7, 3, 8, 3),
    Sketcher.Constraint("Horizontal", 8, 3, 9, 3),
    Sketcher.Constraint("Horizontal", 9, 3, 10, 3),
    Sketcher.Constraint("Horizontal", 10, 3, 11, 3),
    Sketcher.Constraint("Horizontal", 11, 3, 12, 3),
    Sketcher.Constraint("Horizontal", 12, 3, 13, 3),
    Sketcher.Constraint("Horizontal", 13, 3, 14, 3),
    Sketcher.Constraint("Horizontal", 14, 3, 15, 3),
    Sketcher.Constraint("Horizontal", 15, 3, 16, 3),
    Sketcher.Constraint("Horizontal", 16, 3, 17, 3),
    Sketcher.Constraint("Horizontal", 17, 3, 18, 3),
    Sketcher.Constraint("Horizontal", 18, 3, 2, 1),
    Sketcher.Constraint("Horizontal", 2, 1, 3, 1),
    Sketcher.Constraint("Horizontal", 3, 3, 4, 1),
    Sketcher.Constraint("Diameter", 0, Q("0.5 in")),
    Sketcher.Constraint("DistanceX", -1, 1, 9, 3, Q("3 in")),
    Sketcher.Constraint("DistanceX", -1, 1, 13, 3, Q("6 in")),
    Sketcher.Constraint("DistanceX", -1, 1, 17, 3, Q("9 in")),
    Sketcher.Constraint("DistanceX", 4, 1, -1, 1, Q("1 in")),
    Sketcher.Constraint("DistanceX", 1, 3, 0, 3, Q("12 in")),
    Sketcher.Constraint("DistanceX", 2, 3, 8, 3, Q("3 in")),
    Sketcher.Constraint("DistanceX", 6, 3, 10, 3, Q("3 in")),
    Sketcher.Constraint("DistanceX", 7, 3, 11, 3, Q("3 in")),
    Sketcher.Constraint("DistanceX", 8, 3, 12, 3, Q("3 in")),
    Sketcher.Constraint("DistanceX", 10, 3, 14, 3, Q("3 in")),
    Sketcher.Constraint("DistanceX", 15, 3, 0, 3, Q("3 in")),
    Sketcher.Constraint("DistanceX", 11, 3, 15, 3, Q("3 in")),
    Sketcher.Constraint("DistanceX", 12, 3, 16, 3, Q("3 in")),
    Sketcher.Constraint("DistanceX", 14, 3, 18, 3, Q("3 in")),
    Sketcher.Constraint("DistanceX", 2, 3, 6, 3, Q("1.5 in")),
    Sketcher.Constraint("DistanceY", -1, 1, 0, 3, Q("0.75 in")),
    Sketcher.Constraint("Radius", 4, Q("6.735724 mm")),
    Sketcher.Constraint("DistanceY", 2, 3, 4, 3, Q("0.000432 mm")),
    Sketcher.Constraint("DistanceY", -1, 1, 2, 3, Q("19.065573 mm")),
])
pocket1 = body.newObject("PartDesign::Pocket", "Pocket")
pocket1.Profile = sketch3
pocket1.Length = Q("0.5 in")
pocket1.Reversed = True

# Sketch on XY plane
sketch4 = body.newObject("Sketcher::SketchObject", "Sketch003")
sketch4.AttachmentSupport = (doc.getObject("XY_Plane"), [""])
sketch4.MapMode = "FlatFace"
add_polygon(sketch4, [(-48.004731, 285.75), (-51.179731, 285.75), (-51.179731, -57.470996), (-48.004731, -57.470996)])  # lines 0-3
sketch4.addConstraint([
    Sketcher.Constraint("Horizontal", 0),
    Sketcher.Constraint("Vertical", 1),
    Sketcher.Constraint("Horizontal", 2),
    Sketcher.Constraint("Vertical", 3),
    Sketcher.Constraint("DistanceX", 0, 2, 0, 1, Q("0.125 in")),
    Sketcher.Constraint("DistanceY", -1, 1, 0, 2, Q("11.25 in")),
    Sketcher.Constraint("DistanceY", 1, 2, 1, 1, Q("343.220996 mm")),
    Sketcher.Constraint("DistanceX", 0, 2, -1, 1, Q("51.179731 mm")),
])
pad3 = body.newObject("PartDesign::Pad", "Pad002")
pad3.Profile = sketch4
pad3.Length = Q("1.5 in")

# Sketch on YZ plane
sketch5 = body.newObject("Sketcher::SketchObject", "Sketch004")
sketch5.AttachmentSupport = (doc.getObject("YZ_Plane"), [""])
sketch5.MapMode = "FlatFace"
sketch5.AttachmentOffset = App.Placement(V(0, 0, -48.004731), App.Rotation())
sketch5.addGeometry([
    Part.Circle(V(266.7, 19.05, 0), V(0, 0, 1), 6.35),  # 0
    Part.Circle(V(-38.107242, 19.05, 0), V(0, 0, 1), 6.35),  # 1
    Part.Circle(V(-19.057242, 19.05, 0), V(0, 0, 1), 6.35),  # 2
    Part.Circle(V(-0.007242, 19.05, 0), V(0, 0, 1), 6.35),  # 3
    Part.Circle(V(19.042758, 19.05, 0), V(0, 0, 1), 6.35),  # 4
    Part.Circle(V(38.092758, 19.05, 0), V(0, 0, 1), 6.35),  # 5
    Part.Circle(V(57.142758, 19.05, 0), V(0, 0, 1), 6.35),  # 6
    Part.Circle(V(76.192758, 19.05, 0), V(0, 0, 1), 6.35),  # 7
    Part.Circle(V(95.242758, 19.05, 0), V(0, 0, 1), 6.35),  # 8
    Part.Circle(V(114.292758, 19.05, 0), V(0, 0, 1), 6.35),  # 9
    Part.Circle(V(133.342758, 19.05, 0), V(0, 0, 1), 6.35),  # 10
    Part.Circle(V(152.392758, 19.05, 0), V(0, 0, 1), 6.35),  # 11
    Part.Circle(V(171.442758, 19.05, 0), V(0, 0, 1), 6.35),  # 12
    Part.Circle(V(190.492758, 19.05, 0), V(0, 0, 1), 6.35),  # 13
    Part.Circle(V(209.542758, 19.05, 0), V(0, 0, 1), 6.35),  # 14
    Part.Circle(V(228.592758, 19.05, 0), V(0, 0, 1), 6.35),  # 15
    Part.Circle(V(247.65, 19.05, 0), V(0, 0, 1), 6.35),  # 16
], False)
sketch5.addConstraint([
    Sketcher.Constraint("Equal", 0, 1),
    Sketcher.Constraint("Equal", 1, 2),
    Sketcher.Constraint("Equal", 2, 3),
    Sketcher.Constraint("Equal", 3, 4),
    Sketcher.Constraint("Equal", 4, 5),
    Sketcher.Constraint("Equal", 5, 6),
    Sketcher.Constraint("Equal", 6, 7),
    Sketcher.Constraint("Equal", 7, 8),
    Sketcher.Constraint("Equal", 8, 9),
    Sketcher.Constraint("Equal", 9, 10),
    Sketcher.Constraint("Equal", 10, 11),
    Sketcher.Constraint("Equal", 11, 12),
    Sketcher.Constraint("Equal", 12, 13),
    Sketcher.Constraint("Equal", 13, 14),
    Sketcher.Constraint("Equal", 14, 15),
    Sketcher.Constraint("Equal", 15, 16),
    Sketcher.Constraint("Horizontal", 0, 3, 1, 3),
    Sketcher.Constraint("Horizontal", 1, 3, 2, 3),
    Sketcher.Constraint("Horizontal", 2, 3, 3, 3),
    Sketcher.Constraint("Horizontal", 3, 3, 4, 3),
    Sketcher.Constraint("Horizontal", 4, 3, 5, 3),
    Sketcher.Constraint("Horizontal", 5, 3, 6, 3),
    Sketcher.Constraint("Horizontal", 6, 3, 7, 3),
    Sketcher.Constraint("Horizontal", 7, 3, 8, 3),
    Sketcher.Constraint("Horizontal", 8, 3, 9, 3),
    Sketcher.Constraint("Horizontal", 9, 3, 10, 3),
    Sketcher.Constraint("Horizontal", 10, 3, 11, 3),
    Sketcher.Constraint("Horizontal", 11, 3, 12, 3),
    Sketcher.Constraint("Horizontal", 12, 3, 13, 3),
    Sketcher.Constraint("Horizontal", 13, 3, 14, 3),
    Sketcher.Constraint("Horizontal", 14, 3, 15, 3),
    Sketcher.Constraint("Horizontal", 15, 3, 16, 3),
    Sketcher.Constraint("Diameter", 0, Q("0.5 in")),
    Sketcher.Constraint("DistanceX", 1, 3, 5, 3, Q("3 in")),
    Sketcher.Constraint("DistanceX", 2, 3, 6, 3, Q("3 in")),
    Sketcher.Constraint("DistanceX", 3, 3, 7, 3, Q("3 in")),
    Sketcher.Constraint("DistanceX", 4, 3, 8, 3, Q("3 in")),
    Sketcher.Constraint("DistanceX", 5, 3, 9, 3, Q("3 in")),
    Sketcher.Constraint("DistanceX", 6, 3, 10, 3, Q("3 in")),
    Sketcher.Constraint("DistanceX", 7, 3, 11, 3, Q("3 in")),
    Sketcher.Constraint("DistanceX", 8, 3, 12, 3, Q("3 in")),
    Sketcher.Constraint("DistanceX", 9, 3, 13, 3, Q("3 in")),
    Sketcher.Constraint("DistanceX", 10, 3, 14, 3, Q("3 in")),
    Sketcher.Constraint("DistanceX", 11, 3, 15, 3, Q("3 in")),
    Sketcher.Constraint("DistanceX", -1, 1, 0, 3, Q("10.5 in")),
    Sketcher.Constraint("DistanceX", 1, 3, 3, 3, Q("1.5 in")),
    Sketcher.Constraint("DistanceX", 2, 3, 4, 3, Q("1.5 in")),
    Sketcher.Constraint("DistanceY", -1, 1, 0, 3, Q("0.75 in")),
    Sketcher.Constraint("DistanceX", -1, 1, 16, 3, Q("9.75 in")),
    Sketcher.Constraint("DistanceX", 1, 3, 2, 3, Q("0.75 in")),
    Sketcher.Constraint("DistanceX", 2, 3, -1, 1, Q("19.057242 mm")),
])
pocket2 = body.newObject("PartDesign::Pocket", "Pocket001")
pocket2.Profile = sketch5
pocket2.Length = Q("0.5 in")

doc.recompute()
